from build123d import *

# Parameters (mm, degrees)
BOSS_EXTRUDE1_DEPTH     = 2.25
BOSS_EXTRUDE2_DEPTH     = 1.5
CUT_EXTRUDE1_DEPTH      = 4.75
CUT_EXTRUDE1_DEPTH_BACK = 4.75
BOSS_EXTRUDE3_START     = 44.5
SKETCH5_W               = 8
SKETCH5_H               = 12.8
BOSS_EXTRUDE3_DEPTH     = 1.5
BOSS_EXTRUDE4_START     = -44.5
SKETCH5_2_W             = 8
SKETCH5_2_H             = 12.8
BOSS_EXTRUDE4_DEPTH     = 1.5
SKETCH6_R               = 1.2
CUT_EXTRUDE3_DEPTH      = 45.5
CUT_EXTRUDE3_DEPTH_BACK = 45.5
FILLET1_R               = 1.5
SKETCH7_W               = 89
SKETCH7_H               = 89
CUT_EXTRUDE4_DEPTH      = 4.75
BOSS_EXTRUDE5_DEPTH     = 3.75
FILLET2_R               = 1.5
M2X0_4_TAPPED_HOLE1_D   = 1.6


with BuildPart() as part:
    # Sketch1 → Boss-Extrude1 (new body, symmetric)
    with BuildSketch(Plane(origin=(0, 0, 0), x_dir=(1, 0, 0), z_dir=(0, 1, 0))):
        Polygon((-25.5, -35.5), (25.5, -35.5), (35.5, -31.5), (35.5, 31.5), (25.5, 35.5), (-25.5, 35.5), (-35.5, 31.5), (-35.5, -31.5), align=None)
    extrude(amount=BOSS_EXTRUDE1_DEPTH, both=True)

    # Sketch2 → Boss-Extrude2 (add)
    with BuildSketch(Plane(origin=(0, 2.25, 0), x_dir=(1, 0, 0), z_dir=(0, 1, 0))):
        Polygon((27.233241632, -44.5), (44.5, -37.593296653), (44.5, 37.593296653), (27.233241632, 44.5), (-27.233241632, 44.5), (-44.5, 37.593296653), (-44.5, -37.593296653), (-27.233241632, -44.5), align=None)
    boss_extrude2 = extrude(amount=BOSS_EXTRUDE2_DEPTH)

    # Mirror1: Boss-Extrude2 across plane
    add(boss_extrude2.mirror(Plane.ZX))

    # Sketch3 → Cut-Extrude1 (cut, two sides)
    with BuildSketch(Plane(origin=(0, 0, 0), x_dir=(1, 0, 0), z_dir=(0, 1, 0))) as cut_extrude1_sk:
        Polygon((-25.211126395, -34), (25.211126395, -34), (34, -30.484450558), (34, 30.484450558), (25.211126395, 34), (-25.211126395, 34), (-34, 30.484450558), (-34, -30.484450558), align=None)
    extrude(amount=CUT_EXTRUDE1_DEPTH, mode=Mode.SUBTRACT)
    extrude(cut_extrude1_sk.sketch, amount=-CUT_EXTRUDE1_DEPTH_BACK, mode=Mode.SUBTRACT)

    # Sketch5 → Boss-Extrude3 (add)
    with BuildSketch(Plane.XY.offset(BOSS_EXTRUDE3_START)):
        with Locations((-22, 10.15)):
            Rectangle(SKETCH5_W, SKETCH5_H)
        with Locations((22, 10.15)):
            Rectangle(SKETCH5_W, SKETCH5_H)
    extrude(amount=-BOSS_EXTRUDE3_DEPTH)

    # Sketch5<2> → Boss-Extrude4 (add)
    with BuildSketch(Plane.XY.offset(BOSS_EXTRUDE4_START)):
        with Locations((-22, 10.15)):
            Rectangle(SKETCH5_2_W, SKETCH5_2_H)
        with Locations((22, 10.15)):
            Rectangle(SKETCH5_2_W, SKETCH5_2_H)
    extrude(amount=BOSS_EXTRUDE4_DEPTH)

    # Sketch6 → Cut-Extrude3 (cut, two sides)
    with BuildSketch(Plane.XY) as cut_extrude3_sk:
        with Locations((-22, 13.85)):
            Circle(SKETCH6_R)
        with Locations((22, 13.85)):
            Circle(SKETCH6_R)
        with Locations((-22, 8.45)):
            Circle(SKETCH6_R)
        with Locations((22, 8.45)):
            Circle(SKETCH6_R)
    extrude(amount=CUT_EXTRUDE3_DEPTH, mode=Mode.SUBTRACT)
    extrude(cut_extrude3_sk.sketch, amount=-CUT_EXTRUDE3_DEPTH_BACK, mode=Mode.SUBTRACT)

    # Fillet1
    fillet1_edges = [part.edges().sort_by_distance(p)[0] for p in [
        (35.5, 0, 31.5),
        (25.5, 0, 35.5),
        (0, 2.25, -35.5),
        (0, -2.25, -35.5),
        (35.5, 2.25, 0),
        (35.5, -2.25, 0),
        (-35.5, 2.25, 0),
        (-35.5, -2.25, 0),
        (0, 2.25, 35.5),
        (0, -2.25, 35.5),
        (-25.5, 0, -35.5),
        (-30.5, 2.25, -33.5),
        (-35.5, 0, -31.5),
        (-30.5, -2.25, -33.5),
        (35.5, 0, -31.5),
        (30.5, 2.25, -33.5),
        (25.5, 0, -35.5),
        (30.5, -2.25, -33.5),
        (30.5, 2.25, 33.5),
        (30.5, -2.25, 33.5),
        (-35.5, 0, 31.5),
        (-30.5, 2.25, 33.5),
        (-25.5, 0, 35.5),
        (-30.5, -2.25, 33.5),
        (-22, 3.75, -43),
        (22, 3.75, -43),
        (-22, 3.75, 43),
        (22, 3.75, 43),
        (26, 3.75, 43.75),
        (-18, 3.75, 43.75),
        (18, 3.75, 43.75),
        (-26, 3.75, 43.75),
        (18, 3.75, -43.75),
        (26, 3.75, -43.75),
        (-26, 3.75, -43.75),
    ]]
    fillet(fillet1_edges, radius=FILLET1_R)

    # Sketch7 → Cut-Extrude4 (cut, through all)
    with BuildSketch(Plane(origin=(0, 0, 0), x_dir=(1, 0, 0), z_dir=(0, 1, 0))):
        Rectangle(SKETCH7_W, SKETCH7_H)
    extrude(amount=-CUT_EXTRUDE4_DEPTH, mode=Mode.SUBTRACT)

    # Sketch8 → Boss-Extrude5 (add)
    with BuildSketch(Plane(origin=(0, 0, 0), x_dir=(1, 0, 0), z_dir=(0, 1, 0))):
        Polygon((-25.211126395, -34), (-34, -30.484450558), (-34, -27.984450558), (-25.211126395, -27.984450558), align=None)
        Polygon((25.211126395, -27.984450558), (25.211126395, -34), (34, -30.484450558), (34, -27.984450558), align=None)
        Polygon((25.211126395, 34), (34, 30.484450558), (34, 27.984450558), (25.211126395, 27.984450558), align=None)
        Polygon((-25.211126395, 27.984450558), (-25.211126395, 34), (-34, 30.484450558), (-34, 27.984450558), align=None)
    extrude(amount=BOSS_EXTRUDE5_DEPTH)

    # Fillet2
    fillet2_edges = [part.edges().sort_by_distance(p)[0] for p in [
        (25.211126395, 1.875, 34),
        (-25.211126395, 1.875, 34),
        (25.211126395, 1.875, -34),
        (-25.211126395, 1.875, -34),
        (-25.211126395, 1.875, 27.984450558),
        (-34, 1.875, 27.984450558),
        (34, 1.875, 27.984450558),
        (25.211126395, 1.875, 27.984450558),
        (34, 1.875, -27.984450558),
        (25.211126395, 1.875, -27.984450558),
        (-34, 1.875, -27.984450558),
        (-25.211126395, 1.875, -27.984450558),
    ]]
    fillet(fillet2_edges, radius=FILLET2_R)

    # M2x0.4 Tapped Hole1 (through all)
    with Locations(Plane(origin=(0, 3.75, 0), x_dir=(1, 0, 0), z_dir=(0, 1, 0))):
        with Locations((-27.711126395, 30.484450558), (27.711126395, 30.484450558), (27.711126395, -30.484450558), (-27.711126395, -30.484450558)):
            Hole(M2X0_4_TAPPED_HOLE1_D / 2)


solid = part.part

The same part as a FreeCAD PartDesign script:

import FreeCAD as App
import Part
import Sketcher
from FreeCAD import Vector
Q = App.Units.Quantity


def edges_at(feature, points):
    """Names of the edges that pass closest to the given points."""
    edges = feature.Shape.Edges
    near = lambda p: min(range(len(edges)), key=lambda i: edges[i].distToShape(Part.Vertex(*p))[0])
    return sorted({f"Edge{near(p) + 1}" for p in points})


def add_polygon(sketch, points):
    """Adds a closed chain of lines whose ends are joined by coincident constraints."""
    first, n = sketch.GeometryCount, len(points)
    for a, b in zip(points, points[1:] + points[:1]):
        sketch.addGeometry(Part.LineSegment(App.Vector(*a, 0), App.Vector(*b, 0)), False)
    for i in range(n):
        sketch.addConstraint(Sketcher.Constraint("Coincident", first + i, 2, first + (i + 1) % n, 1))

doc = App.newDocument("Part")
body = doc.addObject("PartDesign::Body", "Body")

# Sketch on XZ plane
sketch1 = body.newObject("Sketcher::SketchObject", "Sketch")
sketch1.AttachmentSupport = (doc.getObject("XZ_Plane"), [""])
sketch1.MapMode = "FlatFace"
add_polygon(sketch1, [(-26, 36), (26, 36), (36, 32), (36, -32), (26, -36), (-26, -36), (-36, -32), (-36, 32)])  # lines 0-7
sketch1.addConstraint(Sketcher.Constraint("Horizontal", 0))
sketch1.addConstraint(Sketcher.Constraint("Vertical", 2))
sketch1.addConstraint(Sketcher.Constraint("Horizontal", 4))
sketch1.addConstraint(Sketcher.Constraint("Vertical", 6))
sketch1.addConstraint(Sketcher.Constraint("Symmetric", 0, 2, 4, 2, -1, 1))
sketch1.addConstraint(Sketcher.Constraint("Symmetric", 1, 2, 5, 2, -1, 1))
sketch1.addConstraint(Sketcher.Constraint("Parallel", 3, 7))
sketch1.addConstraint(Sketcher.Constraint("Horizontal", 2, 2, 5, 2))
sketch1.addConstraint(Sketcher.Constraint("Horizontal", 1, 2, 6, 2))
sketch1.addConstraint(Sketcher.Constraint("Vertical", 0, 2, 3, 2))
sketch1.addConstraint(Sketcher.Constraint("DistanceX", 0, 1, 0, 2, Q("51 mm")))
sketch1.addConstraint(Sketcher.Constraint("DistanceY", 2, 2, 2, 1, Q("63 mm")))
sketch1.addConstraint(Sketcher.Constraint("DistanceX", 0, 2, 1, 2, Q("10 mm")))
sketch1.addConstraint(Sketcher.Constraint("DistanceY", 1, 2, 0, 2, Q("4 mm")))
pad1 = body.newObject("PartDesign::Pad", "Pad")
pad1.Profile = sketch1
pad1.Length = 4.5
pad1.Midplane = True

# Sketch on XZ plane
sketch2 = body.newObject("Sketcher::SketchObject", "Sketch001")
sketch2.AttachmentSupport = (doc.getObject("XZ_Plane"), [""])
sketch2.MapMode = "FlatFace"
sketch2.AttachmentOffset = App.Placement(Vector(0, 0, -2.25), App.Rotation())
add_polygon(sketch2, [(27, 44), (44, 38), (44, -38), (27, -44), (-27, -44), (-44, -38), (-44, 38), (-27, 44)])  # lines 0-7
sketch2.addConstraint(Sketcher.Constraint("Vertical", 1))
sketch2.addConstraint(Sketcher.Constraint("Horizontal", 3))
sketch2.addConstraint(Sketcher.Constraint("Vertical", 5))
sketch2.addConstraint(Sketcher.Constraint("Horizontal", 7))
sketch2.addConstraint(Sketcher.Constraint("Symmetric", 0, 2, 4, 2, -1, 1))
sketch2.addConstraint(Sketcher.Constraint("Symmetric", 2, 2, 6, 2, -1, 1))
sketch2.addConstraint(Sketcher.Constraint("Parallel", 0, 4))
sketch2.addConstraint(Sketcher.Constraint("Parallel", 2, 6))
sketch2.addConstraint(Sketcher.Constraint("Horizontal", 1, 2, 4, 2))
sketch2.addConstraint(Sketcher.Constraint("Vertical", 3, 2, 6, 2))
sketch2.addConstraint(Sketcher.Constraint("DistanceX", 4, 2, 1, 2, Q("89 mm")))
sketch2.addConstraint(Sketcher.Constraint("DistanceY", 3, 2, 6, 2, Q("89 mm")))
sketch2.addConstraint(Sketcher.Constraint("DistanceX", 3, 2, 3, 1, Q("54.466483 mm")))
sketch2.addConstraint(Sketcher.Constraint("DistanceY", 1, 2, 1, 1, Q("75.186593 mm")))
pad2 = body.newObject("PartDesign::Pad", "Pad001")
pad2.Profile = sketch2
pad2.Length = 1.5
pad2.Reversed = True
doc.recompute()

mirrored = body.newObject("PartDesign::Mirrored", "Mirrored")
mirrored.Originals = [pad2]
mirrored.MirrorPlane = (doc.getObject("XZ_Plane"), [""])
body.Tip = mirrored

# Sketch on XZ plane
sketch3 = body.newObject("Sketcher::SketchObject", "Sketch002")
sketch3.AttachmentSupport = (doc.getObject("XZ_Plane"), [""])
sketch3.MapMode = "FlatFace"
add_polygon(sketch3, [(-25, 34), (25, 34), (34, 30), (34, -30), (25, -34), (-25, -34), (-34, -30), (-34, 30)])  # lines 0-7
sketch3.addConstraint(Sketcher.Constraint("Horizontal", 0))
sketch3.addConstraint(Sketcher.Constraint("Vertical", 2))
sketch3.addConstraint(Sketcher.Constraint("Horizontal", 4))
sketch3.addConstraint(Sketcher.Constraint("Vertical", 6))
sketch3.addConstraint(Sketcher.Constraint("Symmetric", 0, 2, 4, 2, -1, 1))
sketch3.addConstraint(Sketcher.Constraint("Symmetric", 1, 2, 5, 2, -1, 1))
sketch3.addConstraint(Sketcher.Constraint("Parallel", 3, 7))
sketch3.addConstraint(Sketcher.Constraint("Horizontal", 2, 2, 5, 2))
sketch3.addConstraint(Sketcher.Constraint("Horizontal", 1, 2, 6, 2))
sketch3.addConstraint(Sketcher.Constraint("Vertical", 0, 2, 3, 2))
sketch3.addConstraint(Sketcher.Constraint("DistanceY", -1, 1, 0, 2, Q("34 mm")))
sketch3.addConstraint(Sketcher.Constraint("DistanceX", -1, 1, 1, 2, Q("34 mm")))
sketch3.addConstraint(Sketcher.Constraint("DistanceY", 2, 2, 2, 1, Q("60.968901 mm")))
sketch3.addConstraint(Sketcher.Constraint("DistanceX", 0, 1, 0, 2, Q("50.422253 mm")))
pocket1 = body.newObject("PartDesign::Pocket", "Pocket")
pocket1.Profile = sketch3
pocket1.Type = "ThroughAll"
pocket1.Midplane = True

# Sketch on XY plane
sketch4 = body.newObject("Sketcher::SketchObject", "Sketch003")
sketch4.AttachmentSupport = (doc.getObject("XY_Plane"), [""])
sketch4.MapMode = "FlatFace"
sketch4.AttachmentOffset = App.Placement(Vector(0, 0, 44.5), App.Rotation())
add_polygon(sketch4, [(-26, 17), (-26, 4), (-18, 4), (-18, 17)])  # lines 0-3
add_polygon(sketch4, [(18, 17), (18, 4), (26, 4), (26, 17)])  # lines 4-7
sketch4.addConstraint(Sketcher.Constraint("Vertical", 0))
sketch4.addConstraint(Sketcher.Constraint("Horizontal", 1))
sketch4.addConstraint(Sketcher.Constraint("Vertical", 2))
sketch4.addConstraint(Sketcher.Constraint("Horizontal", 3))
sketch4.addConstraint(Sketcher.Constraint("Vertical", 4))
sketch4.addConstraint(Sketcher.Constraint("Horizontal", 5))
sketch4.addConstraint(Sketcher.Constraint("Vertical", 6))
sketch4.addConstraint(Sketcher.Constraint("Horizontal", 7))
sketch4.addConstraint(Sketcher.Constraint("Symmetric", 1, 2, 4, 2, -2))
sketch4.addConstraint(Sketcher.Constraint("Symmetric", 3, 2, 6, 2, -2))
sketch4.addConstraint(Sketcher.Constraint("DistanceX", 1, 1, 1, 2, Q("8 mm")))
sketch4.addConstraint(Sketcher.Constraint("DistanceY", 0, 2, 0, 1, Q("12.8 mm")))
sketch4.addConstraint(Sketcher.Constraint("DistanceX", 0, 2, -1, 1, Q("26 mm")))
sketch4.addConstraint(Sketcher.Constraint("DistanceY", -1, 1, 0, 2, Q("3.75 mm")))
pad3 = body.newObject("PartDesign::Pad", "Pad002")
pad3.Profile = sketch4
pad3.Length = 1.5
pad3.Reversed = True

# Sketch on XY plane
sketch5 = body.newObject("Sketcher::SketchObject", "Sketch004")
sketch5.AttachmentSupport = (doc.getObject("XY_Plane"), [""])
sketch5.MapMode = "FlatFace"
sketch5.AttachmentOffset = App.Placement(Vector(0, 0, -44.5), App.Rotation())
add_polygon(sketch5, [(-26, 17), (-26, 4), (-18, 4), (-18, 17)])  # lines 0-3
add_polygon(sketch5, [(18, 17), (18, 4), (26, 4), (26, 17)])  # lines 4-7
sketch5.addConstraint(Sketcher.Constraint("Vertical", 0))
sketch5.addConstraint(Sketcher.Constraint("Horizontal", 1))
sketch5.addConstraint(Sketcher.Constraint("Vertical", 2))
sketch5.addConstraint(Sketcher.Constraint("Horizontal", 3))
sketch5.addConstraint(Sketcher.Constraint("Vertical", 4))
sketch5.addConstraint(Sketcher.Constraint("Horizontal", 5))
sketch5.addConstraint(Sketcher.Constraint("Vertical", 6))
sketch5.addConstraint(Sketcher.Constraint("Horizontal", 7))
sketch5.addConstraint(Sketcher.Constraint("Symmetric", 1, 2, 4, 2, -2))
sketch5.addConstraint(Sketcher.Constraint("Symmetric", 3, 2, 6, 2, -2))
sketch5.addConstraint(Sketcher.Constraint("DistanceX", 1, 1, 1, 2, Q("8 mm")))
sketch5.addConstraint(Sketcher.Constraint("DistanceY", 0, 2, 0, 1, Q("12.8 mm")))
sketch5.addConstraint(Sketcher.Constraint("DistanceX", 0, 2, -1, 1, Q("26 mm")))
sketch5.addConstraint(Sketcher.Constraint("DistanceY", -1, 1, 0, 2, Q("3.75 mm")))
pad4 = body.newObject("PartDesign::Pad", "Pad003")
pad4.Profile = sketch5
pad4.Length = 1.5

# Sketch on XY plane
sketch6 = body.newObject("Sketcher::SketchObject", "Sketch005")
sketch6.AttachmentSupport = (doc.getObject("XY_Plane"), [""])
sketch6.MapMode = "FlatFace"
sketch6.addGeometry(Part.Circle(Vector(-22, 13.8, 0), Vector(0, 0, 1), 1.2), False)
sketch6.addGeometry(Part.Circle(Vector(22, 13.8, 0), Vector(0, 0, 1), 1.2), False)
sketch6.addGeometry(Part.Circle(Vector(-22, 8.4, 0), Vector(0, 0, 1), 1.2), False)
sketch6.addGeometry(Part.Circle(Vector(22, 8.4, 0), Vector(0, 0, 1), 1.2), False)
sketch6.addConstraint(Sketcher.Constraint("Equal", 0, 1))
sketch6.addConstraint(Sketcher.Constraint("Equal", 1, 2))
sketch6.addConstraint(Sketcher.Constraint("Equal", 2, 3))
sketch6.addConstraint(Sketcher.Constraint("Symmetric", 0, 3, 1, 3, -2))
sketch6.addConstraint(Sketcher.Constraint("Symmetric", 2, 3, 3, 3, -2))
sketch6.addConstraint(Sketcher.Constraint("Vertical", 0, 3, 2, 3))
sketch6.addConstraint(Sketcher.Constraint("Diameter", 0, Q("2.4 mm")))
sketch6.addConstraint(Sketcher.Constraint("DistanceX", 0, 3, -1, 1, Q("22 mm")))
sketch6.addConstraint(Sketcher.Constraint("DistanceY", 2, 3, 0, 3, Q("5.4 mm")))
sketch6.addConstraint(Sketcher.Constraint("DistanceY", -1, 1, 0, 3, Q("13.85 mm")))
pocket2 = body.newObject("PartDesign::Pocket", "Pocket001")
pocket2.Profile = sketch6
pocket2.Type = "ThroughAll"
pocket2.Midplane = True
doc.recompute()

fillet = body.newObject("PartDesign::Fillet", "Fillet")
fillet.Base = (pocket2, edges_at(pocket2, [
    (35.5, 0, 31.5),
    (25.5, 0, 35.5),
    (0, 2.25, -35.5),
    (0, -2.25, -35.5),
    (35.5, 2.25, 0),
    (35.5, -2.25, 0),
    (-35.5, 2.25, 0),
    (-35.5, -2.25, 0),
    (0, 2.25, 35.5),
    (0, -2.25, 35.5),
    (-25.5, 0, -35.5),
    (-30.5, 2.25, -33.5),
    (-35.5, 0, -31.5),
    (-30.5, -2.25, -33.5),
    (35.5, 0, -31.5),
    (30.5, 2.25, -33.5),
    (25.5, 0, -35.5),
    (30.5, -2.25, -33.5),
    (30.5, 2.25, 33.5),
    (30.5, -2.25, 33.5),
    (-35.5, 0, 31.5),
    (-30.5, 2.25, 33.5),
    (-25.5, 0, 35.5),
    (-30.5, -2.25, 33.5),
    (-22, 3.75, -43),
    (22, 3.75, -43),
    (-22, 3.75, 43),
    (22, 3.75, 43),
    (26, 3.75, 43.75),
    (-18, 3.75, 43.75),
    (18, 3.75, 43.75),
    (-26, 3.75, 43.75),
    (18, 3.75, -43.75),
    (26, 3.75, -43.75),
    (-26, 3.75, -43.75),
]))
fillet.Radius = 1.5

# Sketch on XZ plane
sketch7 = body.newObject("Sketcher::SketchObject", "Sketch006")
sketch7.AttachmentSupport = (doc.getObject("XZ_Plane"), [""])
sketch7.MapMode = "FlatFace"
add_polygon(sketch7, [(-44, -44), (-44, 44), (44, 44), (44, -44)])  # lines 0-3
sketch7.addConstraint(Sketcher.Constraint("Vertical", 0))
sketch7.addConstraint(Sketcher.Constraint("Horizontal", 1))
sketch7.addConstraint(Sketcher.Constraint("Vertical", 2))
sketch7.addConstraint(Sketcher.Constraint("Horizontal", 3))
sketch7.addConstraint(Sketcher.Constraint("Symmetric", 0, 2, 2, 2, -1, 1))
sketch7.addConstraint(Sketcher.Constraint("Equal", 3, 0))
sketch7.addConstraint(Sketcher.Constraint("DistanceX", 1, 1, 1, 2, Q("89 mm")))
pocket3 = body.newObject("PartDesign::Pocket", "Pocket002")
pocket3.Profile = sketch7
pocket3.Type = "ThroughAll"
pocket3.Reversed = True

# Sketch on XZ plane
sketch8 = body.newObject("Sketcher::SketchObject", "Sketch007")
sketch8.AttachmentSupport = (doc.getObject("XZ_Plane"), [""])
sketch8.MapMode = "FlatFace"
add_polygon(sketch8, [(-34, 30.5), (-25.2, 34), (-25.2, 28), (-34, 28)])  # lines 0-3
add_polygon(sketch8, [(25.2, 28), (25.2, 34), (34, 30.5), (34, 28)])  # lines 4-7
add_polygon(sketch8, [(34, -30.5), (25.2, -34), (25.2, -28), (34, -28)])  # lines 8-11
add_polygon(sketch8, [(-25.2, -28), (-25.2, -34), (-34, -30.5), (-34, -28)])  # lines 12-15
sketch8.addConstraint(Sketcher.Constraint("Vertical", 1))
sketch8.addConstraint(Sketcher.Constraint("Horizontal", 2))
sketch8.addConstraint(Sketcher.Constraint("Vertical", 3))
sketch8.addConstraint(Sketcher.Constraint("Vertical", 4))
sketch8.addConstraint(Sketcher.Constraint("Vertical", 6))
sketch8.addConstraint(Sketcher.Constraint("Horizontal", 7))
sketch8.addConstraint(Sketcher.Constraint("Vertical", 9))
sketch8.addConstraint(Sketcher.Constraint("Horizontal", 10))
sketch8.addConstraint(Sketcher.Constraint("Vertical", 11))
sketch8.addConstraint(Sketcher.Constraint("Vertical", 12))
sketch8.addConstraint(Sketcher.Constraint("Vertical", 14))
sketch8.addConstraint(Sketcher.Constraint("Horizontal", 15))
sketch8.addConstraint(Sketcher.Constraint("Symmetric", 0, 2, 8, 2, -1, 1))
sketch8.addConstraint(Sketcher.Constraint("Symmetric", 2, 2, 10, 2, -1, 1))
sketch8.addConstraint(Sketcher.Constraint("Symmetric", 4, 2, 12, 2, -1, 1))
sketch8.addConstraint(Sketcher.Constraint("Symmetric", 5, 2, 13, 2, -1, 1))
sketch8.addConstraint(Sketcher.Constraint("Symmetric", 0, 2, 4, 2, -2))
sketch8.addConstraint(Sketcher.Constraint("Symmetric", 3, 2, 5, 2, -2))
sketch8.addConstraint(Sketcher.Constraint("Parallel", 0, 8))
sketch8.addConstraint(Sketcher.Constraint("Horizontal", 2, 2, 6, 2))
sketch8.addConstraint(Sketcher.Constraint("Horizontal", 10, 2, 14, 2))
sketch8.addConstraint(Sketcher.Constraint("DistanceY", 3, 1, 3, 2, Q("2.5 mm")))
sketch8.addConstraint(Sketcher.Constraint("DistanceY", -1, 1, 0, 2, Q("34 mm")))
sketch8.addConstraint(Sketcher.Constraint("DistanceX", 2, 2, -1, 1, Q("34 mm")))
sketch8.addConstraint(Sketcher.Constraint("DistanceY", 1, 2, 1, 1, Q("6.015549 mm")))
sketch8.addConstraint(Sketcher.Constraint("DistanceX", 2, 2, 2, 1, Q("8.788874 mm")))
pad5 = body.newObject("PartDesign::Pad", "Pad004")
pad5.Profile = sketch8
pad5.Length = 3.75
pad5.Reversed = True
doc.recompute()

fillet2 = body.newObject("PartDesign::Fillet", "Fillet001")
fillet2.Base = (pad5, edges_at(pad5, [
    (25.211, 1.875, 34),
    (-25.211, 1.875, 34),
    (25.211, 1.875, -34),
    (-25.211, 1.875, -34),
    (-25.211, 1.875, 27.984),
    (-34, 1.875, 27.984),
    (34, 1.875, 27.984),
    (25.211, 1.875, 27.984),
    (34, 1.875, -27.984),
    (25.211, 1.875, -27.984),
    (-34, 1.875, -27.984),
    (-25.211, 1.875, -27.984),
]))
fillet2.Radius = 1.5

# Sketch on XZ plane
sketch9 = body.newObject("Sketcher::SketchObject", "Sketch008")
sketch9.AttachmentSupport = (doc.getObject("XZ_Plane"), [""])
sketch9.MapMode = "FlatFace"
sketch9.AttachmentOffset = App.Placement(Vector(0, 0, -3.75), App.Rotation())
sketch9.addGeometry(Part.Circle(Vector(-27.7, -30.5, 0), Vector(0, 0, 1), 0.8), False)
sketch9.addGeometry(Part.Circle(Vector(27.7, -30.5, 0), Vector(0, 0, 1), 0.8), False)
sketch9.addGeometry(Part.Circle(Vector(27.7, 30.5, 0), Vector(0, 0, 1), 0.8), False)
sketch9.addGeometry(Part.Circle(Vector(-27.7, 30.5, 0), Vector(0, 0, 1), 0.8), False)
sketch9.addConstraint(Sketcher.Constraint("Equal", 0, 1))
sketch9.addConstraint(Sketcher.Constraint("Equal", 1, 2))
sketch9.addConstraint(Sketcher.Constraint("Equal", 2, 3))
sketch9.addConstraint(Sketcher.Constraint("Symmetric", 0, 3, 2, 3, -1, 1))
sketch9.addConstraint(Sketcher.Constraint("Symmetric", 1, 3, 3, 3, -1, 1))
sketch9.addConstraint(Sketcher.Constraint("Symmetric", 0, 3, 1, 3, -2))
sketch9.addConstraint(Sketcher.Constraint("Diameter", 0, Q("1.6 mm")))
sketch9.addConstraint(Sketcher.Constraint("DistanceY", 1, 3, 2, 3, Q("60.968901 mm")))
sketch9.addConstraint(Sketcher.Constraint("DistanceX", 0, 3, -1, 1, Q("27.711126 mm")))
doc.recompute()
hole = body.newObject("PartDesign::Hole", "Hole")
hole.Profile = sketch9
hole.ThreadType = "None"
hole.Diameter = 1.6
hole.DepthType = "ThroughAll"
hole.Reversed = True

doc.recompute()
